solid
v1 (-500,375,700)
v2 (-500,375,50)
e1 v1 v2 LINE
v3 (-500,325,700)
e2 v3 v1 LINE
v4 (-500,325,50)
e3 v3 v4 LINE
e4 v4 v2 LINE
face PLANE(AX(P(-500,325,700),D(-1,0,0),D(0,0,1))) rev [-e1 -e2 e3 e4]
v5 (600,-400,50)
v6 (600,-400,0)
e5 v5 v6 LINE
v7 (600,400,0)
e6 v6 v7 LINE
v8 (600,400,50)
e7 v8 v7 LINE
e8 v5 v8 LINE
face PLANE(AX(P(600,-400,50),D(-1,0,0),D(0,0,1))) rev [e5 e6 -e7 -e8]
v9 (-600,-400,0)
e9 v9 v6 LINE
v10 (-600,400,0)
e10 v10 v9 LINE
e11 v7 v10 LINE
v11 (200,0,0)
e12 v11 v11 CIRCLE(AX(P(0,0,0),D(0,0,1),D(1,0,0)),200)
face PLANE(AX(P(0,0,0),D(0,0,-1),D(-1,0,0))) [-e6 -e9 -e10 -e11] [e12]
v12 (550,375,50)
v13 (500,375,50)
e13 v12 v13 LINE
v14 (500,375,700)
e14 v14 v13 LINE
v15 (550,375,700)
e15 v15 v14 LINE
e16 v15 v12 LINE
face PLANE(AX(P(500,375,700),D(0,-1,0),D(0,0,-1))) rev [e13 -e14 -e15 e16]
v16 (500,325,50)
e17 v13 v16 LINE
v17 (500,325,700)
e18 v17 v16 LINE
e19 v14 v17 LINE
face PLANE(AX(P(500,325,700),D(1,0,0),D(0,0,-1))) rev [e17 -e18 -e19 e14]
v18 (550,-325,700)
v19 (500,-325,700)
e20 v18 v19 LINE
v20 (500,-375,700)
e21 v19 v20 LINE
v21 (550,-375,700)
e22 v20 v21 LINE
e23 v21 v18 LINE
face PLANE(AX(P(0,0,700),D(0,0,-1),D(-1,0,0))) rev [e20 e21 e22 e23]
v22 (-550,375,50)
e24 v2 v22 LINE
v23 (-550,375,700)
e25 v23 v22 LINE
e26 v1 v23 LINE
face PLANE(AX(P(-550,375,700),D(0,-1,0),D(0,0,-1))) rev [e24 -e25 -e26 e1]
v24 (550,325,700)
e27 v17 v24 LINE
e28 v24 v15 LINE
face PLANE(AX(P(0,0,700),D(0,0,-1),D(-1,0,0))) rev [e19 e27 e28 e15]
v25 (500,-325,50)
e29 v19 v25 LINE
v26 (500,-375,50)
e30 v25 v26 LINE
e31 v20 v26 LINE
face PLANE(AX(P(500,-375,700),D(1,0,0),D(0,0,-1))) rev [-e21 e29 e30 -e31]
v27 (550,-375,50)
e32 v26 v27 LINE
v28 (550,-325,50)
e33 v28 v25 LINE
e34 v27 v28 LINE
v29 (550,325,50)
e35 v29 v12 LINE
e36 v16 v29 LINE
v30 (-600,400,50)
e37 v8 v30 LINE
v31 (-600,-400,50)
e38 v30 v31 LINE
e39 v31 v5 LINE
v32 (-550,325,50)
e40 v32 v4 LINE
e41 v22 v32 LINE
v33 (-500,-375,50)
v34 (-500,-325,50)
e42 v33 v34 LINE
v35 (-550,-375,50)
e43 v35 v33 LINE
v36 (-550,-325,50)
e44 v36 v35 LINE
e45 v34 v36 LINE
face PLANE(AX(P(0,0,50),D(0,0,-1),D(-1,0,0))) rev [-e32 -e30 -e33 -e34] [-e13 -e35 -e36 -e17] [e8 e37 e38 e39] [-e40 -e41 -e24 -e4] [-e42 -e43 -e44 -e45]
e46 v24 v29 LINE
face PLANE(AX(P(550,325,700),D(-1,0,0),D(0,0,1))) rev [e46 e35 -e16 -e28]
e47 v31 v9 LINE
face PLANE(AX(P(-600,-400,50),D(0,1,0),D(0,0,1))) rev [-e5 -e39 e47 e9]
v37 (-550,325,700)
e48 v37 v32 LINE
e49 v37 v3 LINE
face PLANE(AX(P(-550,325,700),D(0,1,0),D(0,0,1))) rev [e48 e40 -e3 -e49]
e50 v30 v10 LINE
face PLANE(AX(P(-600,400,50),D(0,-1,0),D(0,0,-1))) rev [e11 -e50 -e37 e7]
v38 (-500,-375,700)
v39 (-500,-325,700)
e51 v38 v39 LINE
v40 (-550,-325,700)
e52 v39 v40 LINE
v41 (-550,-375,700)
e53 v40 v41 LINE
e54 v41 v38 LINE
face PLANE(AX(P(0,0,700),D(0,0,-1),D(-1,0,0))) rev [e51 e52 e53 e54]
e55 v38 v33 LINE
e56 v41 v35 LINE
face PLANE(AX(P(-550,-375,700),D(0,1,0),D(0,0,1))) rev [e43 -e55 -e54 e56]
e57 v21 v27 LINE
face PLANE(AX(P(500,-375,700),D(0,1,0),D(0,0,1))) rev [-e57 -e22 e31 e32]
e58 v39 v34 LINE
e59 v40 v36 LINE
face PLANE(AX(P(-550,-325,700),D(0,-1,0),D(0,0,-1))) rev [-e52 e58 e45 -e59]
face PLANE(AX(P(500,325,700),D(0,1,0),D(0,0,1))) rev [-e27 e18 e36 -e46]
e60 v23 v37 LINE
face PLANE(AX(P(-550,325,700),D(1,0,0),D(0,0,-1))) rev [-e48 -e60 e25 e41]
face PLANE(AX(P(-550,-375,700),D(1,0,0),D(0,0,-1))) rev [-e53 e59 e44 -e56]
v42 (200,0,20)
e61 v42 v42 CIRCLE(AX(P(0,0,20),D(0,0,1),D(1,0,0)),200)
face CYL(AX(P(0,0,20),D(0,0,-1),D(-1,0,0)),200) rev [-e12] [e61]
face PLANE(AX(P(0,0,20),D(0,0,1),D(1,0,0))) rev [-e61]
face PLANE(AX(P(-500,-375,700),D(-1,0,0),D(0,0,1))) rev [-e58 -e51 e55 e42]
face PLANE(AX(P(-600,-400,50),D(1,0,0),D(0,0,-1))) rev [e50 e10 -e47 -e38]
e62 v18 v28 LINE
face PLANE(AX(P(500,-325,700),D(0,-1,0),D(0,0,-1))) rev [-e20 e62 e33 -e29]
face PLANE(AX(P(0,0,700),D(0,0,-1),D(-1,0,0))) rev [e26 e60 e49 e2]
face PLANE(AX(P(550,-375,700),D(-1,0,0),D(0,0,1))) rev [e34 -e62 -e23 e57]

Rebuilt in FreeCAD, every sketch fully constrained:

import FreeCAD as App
import Part
import Sketcher

V = App.Vector

doc = App.newDocument("Part")
body = doc.addObject("PartDesign::Body", "Body")

sketch1 = doc.addObject("Sketcher::SketchObject", "Sketch")
body.addObject(sketch1)
sketch1.AttachmentSupport = (doc.XY_Plane, [""])
sketch1.MapMode = "FlatFace"
sketch1.addGeometry([
    Part.LineSegment(V(-600, 400, 0), V(-600, -400, 0)),
    Part.LineSegment(V(-600, -400, 0), V(600, -400, 0)),
    Part.LineSegment(V(600, -400, 0), V(600, 400, 0)),
    Part.LineSegment(V(600, 400, 0), V(-600, 400, 0)),
], False)
sketch1.addConstraint([
    Sketcher.Constraint("Coincident", 0, 2, 1, 1),
    Sketcher.Constraint("Coincident", 1, 2, 2, 1),
    Sketcher.Constraint("Coincident", 2, 2, 3, 1),
    Sketcher.Constraint("Coincident", 3, 2, 0, 1),
    Sketcher.Constraint("Vertical", 0),
    Sketcher.Constraint("Horizontal", 1),
    Sketcher.Constraint("Vertical", 2),
    Sketcher.Constraint("Horizontal", 3),
    Sketcher.Constraint("Symmetric", 0, 2, 2, 2, -1, 1),
    Sketcher.Constraint("DistanceX", 1, 1, 1, 2, 1200.0),
    Sketcher.Constraint("DistanceY", 0, 2, 0, 1, 800.0),
])
pad1 = doc.addObject("PartDesign::Pad", "Pad")
body.addObject(pad1)
pad1.Profile = sketch1
pad1.Length = 50

sketch2 = doc.addObject("Sketcher::SketchObject", "Sketch001")
body.addObject(sketch2)
sketch2.AttachmentSupport = (doc.XY_Plane, [""])
sketch2.MapMode = "FlatFace"
sketch2.addGeometry([
    Part.LineSegment(V(500, 375, 0), V(500, 325, 0)),
    Part.LineSegment(V(500, 325, 0), V(550, 325, 0)),
    Part.LineSegment(V(550, 325, 0), V(550, 375, 0)),
    Part.LineSegment(V(550, 375, 0), V(500, 375, 0)),
], False)
sketch2.addConstraint([
    Sketcher.Constraint("Coincident", 0, 2, 1, 1),
    Sketcher.Constraint("Coincident", 1, 2, 2, 1),
    Sketcher.Constraint("Coincident", 2, 2, 3, 1),
    Sketcher.Constraint("Coincident", 3, 2, 0, 1),
    Sketcher.Constraint("Vertical", 0),
    Sketcher.Constraint("Horizontal", 1),
    Sketcher.Constraint("Vertical", 2),
    Sketcher.Constraint("Horizontal", 3),
    Sketcher.Constraint("Equal", 3, 0),
    Sketcher.Constraint("DistanceX", 1, 1, 1, 2, 50.0),
    Sketcher.Constraint("DistanceX", -1, 1, 0, 2, 500.0),
    Sketcher.Constraint("DistanceY", -1, 1, 0, 2, 325.0),
])
pad2 = doc.addObject("PartDesign::Pad", "Pad001")
body.addObject(pad2)
pad2.Profile = sketch2
pad2.Length = 700

sketch3 = doc.addObject("Sketcher::SketchObject", "Sketch002")
body.addObject(sketch3)
sketch3.AttachmentSupport = (doc.XY_Plane, [""])
sketch3.MapMode = "FlatFace"
sketch3.addGeometry([
    Part.LineSegment(V(500, -325, 0), V(500, -375, 0)),
    Part.LineSegment(V(500, -375, 0), V(550, -375, 0)),
    Part.LineSegment(V(550, -375, 0), V(550, -325, 0)),
    Part.LineSegment(V(550, -325, 0), V(500, -325, 0)),
], False)
sketch3.addConstraint([
    Sketcher.Constraint("Coincident", 0, 2, 1, 1),
    Sketcher.Constraint("Coincident", 1, 2, 2, 1),
    Sketcher.Constraint("Coincident", 2, 2, 3, 1),
    Sketcher.Constraint("Coincident", 3, 2, 0, 1),
    Sketcher.Constraint("Vertical", 0),
    Sketcher.Constraint("Horizontal", 1),
    Sketcher.Constraint("Vertical", 2),
    Sketcher.Constraint("Horizontal", 3),
    Sketcher.Constraint("Equal", 3, 0),
    Sketcher.Constraint("DistanceX", 1, 1, 1, 2, 50.0),
    Sketcher.Constraint("DistanceX", -1, 1, 0, 2, 500.0),
    Sketcher.Constraint("DistanceY", 0, 2, -1, 1, 375.0),
])
pad3 = doc.addObject("PartDesign::Pad", "Pad002")
body.addObject(pad3)
pad3.Profile = sketch3
pad3.Length = 700

sketch4 = doc.addObject("Sketcher::SketchObject", "Sketch003")
body.addObject(sketch4)
sketch4.AttachmentSupport = (doc.XY_Plane, [""])
sketch4.MapMode = "FlatFace"
sketch4.addGeometry([
    Part.LineSegment(V(-550, 375, 0), V(-550, 325, 0)),
    Part.LineSegment(V(-550, 325, 0), V(-500, 325, 0)),
    Part.LineSegment(V(-500, 325, 0), V(-500, 375, 0)),
    Part.LineSegment(V(-500, 375, 0), V(-550, 375, 0)),
], False)
sketch4.addConstraint([
    Sketcher.Constraint("Coincident", 0, 2, 1, 1),
    Sketcher.Constraint("Coincident", 1, 2, 2, 1),
    Sketcher.Constraint("Coincident", 2, 2, 3, 1),
    Sketcher.Constraint("Coincident", 3, 2, 0, 1),
    Sketcher.Constraint("Vertical", 0),
    Sketcher.Constraint("Horizontal", 1),
    Sketcher.Constraint("Vertical", 2),
    Sketcher.Constraint("Horizontal", 3),
    Sketcher.Constraint("Equal", 3, 0),
    Sketcher.Constraint("DistanceX", 1, 1, 1, 2, 50.0),
    Sketcher.Constraint("DistanceX", 0, 2, -1, 1, 550.0),
    Sketcher.Constraint("DistanceY", -1, 1, 0, 2, 325.0),
])
pad4 = doc.addObject("PartDesign::Pad", "Pad003")
body.addObject(pad4)
pad4.Profile = sketch4
pad4.Length = 700

sketch5 = doc.addObject("Sketcher::SketchObject", "Sketch004")
body.addObject(sketch5)
sketch5.AttachmentSupport = (doc.XY_Plane, [""])
sketch5.MapMode = "FlatFace"
sketch5.addGeometry([
    Part.LineSegment(V(-550, -325, 0), V(-550, -375, 0)),
    Part.LineSegment(V(-550, -375, 0), V(-500, -375, 0)),
    Part.LineSegment(V(-500, -375, 0), V(-500, -325, 0)),
    Part.LineSegment(V(-500, -325, 0), V(-550, -325, 0)),
], False)
sketch5.addConstraint([
    Sketcher.Constraint("Coincident", 0, 2, 1, 1),
    Sketcher.Constraint("Coincident", 1, 2, 2, 1),
    Sketcher.Constraint("Coincident", 2, 2, 3, 1),
    Sketcher.Constraint("Coincident", 3, 2, 0, 1),
    Sketcher.Constraint("Vertical", 0),
    Sketcher.Constraint("Horizontal", 1),
    Sketcher.Constraint("Vertical", 2),
    Sketcher.Constraint("Horizontal", 3),
    Sketcher.Constraint("Equal", 3, 0),
    Sketcher.Constraint("DistanceX", 1, 1, 1, 2, 50.0),
    Sketcher.Constraint("DistanceX", 0, 2, -1, 1, 550.0),
    Sketcher.Constraint("DistanceY", 0, 2, -1, 1, 375.0),
])
pad5 = doc.addObject("PartDesign::Pad", "Pad004")
body.addObject(pad5)
pad5.Profile = sketch5
pad5.Length = 700

sketch6 = doc.addObject("Sketcher::SketchObject", "Sketch005")
body.addObject(sketch6)
sketch6.AttachmentSupport = (doc.XY_Plane, [""])
sketch6.MapMode = "FlatFace"
sketch6.addGeometry(Part.Circle(V(0, 0, 0), V(0, 0, 1), 200), False)
sketch6.addConstraint([
    Sketcher.Constraint("Coincident", 0, 3, -1, 1),
    Sketcher.Constraint("Diameter", 0, 400.0),
])
pocket1 = doc.addObject("PartDesign::Pocket", "Pocket")
body.addObject(pocket1)
pocket1.Profile = sketch6
pocket1.Length = 20
pocket1.Reversed = True

doc.recompute()
